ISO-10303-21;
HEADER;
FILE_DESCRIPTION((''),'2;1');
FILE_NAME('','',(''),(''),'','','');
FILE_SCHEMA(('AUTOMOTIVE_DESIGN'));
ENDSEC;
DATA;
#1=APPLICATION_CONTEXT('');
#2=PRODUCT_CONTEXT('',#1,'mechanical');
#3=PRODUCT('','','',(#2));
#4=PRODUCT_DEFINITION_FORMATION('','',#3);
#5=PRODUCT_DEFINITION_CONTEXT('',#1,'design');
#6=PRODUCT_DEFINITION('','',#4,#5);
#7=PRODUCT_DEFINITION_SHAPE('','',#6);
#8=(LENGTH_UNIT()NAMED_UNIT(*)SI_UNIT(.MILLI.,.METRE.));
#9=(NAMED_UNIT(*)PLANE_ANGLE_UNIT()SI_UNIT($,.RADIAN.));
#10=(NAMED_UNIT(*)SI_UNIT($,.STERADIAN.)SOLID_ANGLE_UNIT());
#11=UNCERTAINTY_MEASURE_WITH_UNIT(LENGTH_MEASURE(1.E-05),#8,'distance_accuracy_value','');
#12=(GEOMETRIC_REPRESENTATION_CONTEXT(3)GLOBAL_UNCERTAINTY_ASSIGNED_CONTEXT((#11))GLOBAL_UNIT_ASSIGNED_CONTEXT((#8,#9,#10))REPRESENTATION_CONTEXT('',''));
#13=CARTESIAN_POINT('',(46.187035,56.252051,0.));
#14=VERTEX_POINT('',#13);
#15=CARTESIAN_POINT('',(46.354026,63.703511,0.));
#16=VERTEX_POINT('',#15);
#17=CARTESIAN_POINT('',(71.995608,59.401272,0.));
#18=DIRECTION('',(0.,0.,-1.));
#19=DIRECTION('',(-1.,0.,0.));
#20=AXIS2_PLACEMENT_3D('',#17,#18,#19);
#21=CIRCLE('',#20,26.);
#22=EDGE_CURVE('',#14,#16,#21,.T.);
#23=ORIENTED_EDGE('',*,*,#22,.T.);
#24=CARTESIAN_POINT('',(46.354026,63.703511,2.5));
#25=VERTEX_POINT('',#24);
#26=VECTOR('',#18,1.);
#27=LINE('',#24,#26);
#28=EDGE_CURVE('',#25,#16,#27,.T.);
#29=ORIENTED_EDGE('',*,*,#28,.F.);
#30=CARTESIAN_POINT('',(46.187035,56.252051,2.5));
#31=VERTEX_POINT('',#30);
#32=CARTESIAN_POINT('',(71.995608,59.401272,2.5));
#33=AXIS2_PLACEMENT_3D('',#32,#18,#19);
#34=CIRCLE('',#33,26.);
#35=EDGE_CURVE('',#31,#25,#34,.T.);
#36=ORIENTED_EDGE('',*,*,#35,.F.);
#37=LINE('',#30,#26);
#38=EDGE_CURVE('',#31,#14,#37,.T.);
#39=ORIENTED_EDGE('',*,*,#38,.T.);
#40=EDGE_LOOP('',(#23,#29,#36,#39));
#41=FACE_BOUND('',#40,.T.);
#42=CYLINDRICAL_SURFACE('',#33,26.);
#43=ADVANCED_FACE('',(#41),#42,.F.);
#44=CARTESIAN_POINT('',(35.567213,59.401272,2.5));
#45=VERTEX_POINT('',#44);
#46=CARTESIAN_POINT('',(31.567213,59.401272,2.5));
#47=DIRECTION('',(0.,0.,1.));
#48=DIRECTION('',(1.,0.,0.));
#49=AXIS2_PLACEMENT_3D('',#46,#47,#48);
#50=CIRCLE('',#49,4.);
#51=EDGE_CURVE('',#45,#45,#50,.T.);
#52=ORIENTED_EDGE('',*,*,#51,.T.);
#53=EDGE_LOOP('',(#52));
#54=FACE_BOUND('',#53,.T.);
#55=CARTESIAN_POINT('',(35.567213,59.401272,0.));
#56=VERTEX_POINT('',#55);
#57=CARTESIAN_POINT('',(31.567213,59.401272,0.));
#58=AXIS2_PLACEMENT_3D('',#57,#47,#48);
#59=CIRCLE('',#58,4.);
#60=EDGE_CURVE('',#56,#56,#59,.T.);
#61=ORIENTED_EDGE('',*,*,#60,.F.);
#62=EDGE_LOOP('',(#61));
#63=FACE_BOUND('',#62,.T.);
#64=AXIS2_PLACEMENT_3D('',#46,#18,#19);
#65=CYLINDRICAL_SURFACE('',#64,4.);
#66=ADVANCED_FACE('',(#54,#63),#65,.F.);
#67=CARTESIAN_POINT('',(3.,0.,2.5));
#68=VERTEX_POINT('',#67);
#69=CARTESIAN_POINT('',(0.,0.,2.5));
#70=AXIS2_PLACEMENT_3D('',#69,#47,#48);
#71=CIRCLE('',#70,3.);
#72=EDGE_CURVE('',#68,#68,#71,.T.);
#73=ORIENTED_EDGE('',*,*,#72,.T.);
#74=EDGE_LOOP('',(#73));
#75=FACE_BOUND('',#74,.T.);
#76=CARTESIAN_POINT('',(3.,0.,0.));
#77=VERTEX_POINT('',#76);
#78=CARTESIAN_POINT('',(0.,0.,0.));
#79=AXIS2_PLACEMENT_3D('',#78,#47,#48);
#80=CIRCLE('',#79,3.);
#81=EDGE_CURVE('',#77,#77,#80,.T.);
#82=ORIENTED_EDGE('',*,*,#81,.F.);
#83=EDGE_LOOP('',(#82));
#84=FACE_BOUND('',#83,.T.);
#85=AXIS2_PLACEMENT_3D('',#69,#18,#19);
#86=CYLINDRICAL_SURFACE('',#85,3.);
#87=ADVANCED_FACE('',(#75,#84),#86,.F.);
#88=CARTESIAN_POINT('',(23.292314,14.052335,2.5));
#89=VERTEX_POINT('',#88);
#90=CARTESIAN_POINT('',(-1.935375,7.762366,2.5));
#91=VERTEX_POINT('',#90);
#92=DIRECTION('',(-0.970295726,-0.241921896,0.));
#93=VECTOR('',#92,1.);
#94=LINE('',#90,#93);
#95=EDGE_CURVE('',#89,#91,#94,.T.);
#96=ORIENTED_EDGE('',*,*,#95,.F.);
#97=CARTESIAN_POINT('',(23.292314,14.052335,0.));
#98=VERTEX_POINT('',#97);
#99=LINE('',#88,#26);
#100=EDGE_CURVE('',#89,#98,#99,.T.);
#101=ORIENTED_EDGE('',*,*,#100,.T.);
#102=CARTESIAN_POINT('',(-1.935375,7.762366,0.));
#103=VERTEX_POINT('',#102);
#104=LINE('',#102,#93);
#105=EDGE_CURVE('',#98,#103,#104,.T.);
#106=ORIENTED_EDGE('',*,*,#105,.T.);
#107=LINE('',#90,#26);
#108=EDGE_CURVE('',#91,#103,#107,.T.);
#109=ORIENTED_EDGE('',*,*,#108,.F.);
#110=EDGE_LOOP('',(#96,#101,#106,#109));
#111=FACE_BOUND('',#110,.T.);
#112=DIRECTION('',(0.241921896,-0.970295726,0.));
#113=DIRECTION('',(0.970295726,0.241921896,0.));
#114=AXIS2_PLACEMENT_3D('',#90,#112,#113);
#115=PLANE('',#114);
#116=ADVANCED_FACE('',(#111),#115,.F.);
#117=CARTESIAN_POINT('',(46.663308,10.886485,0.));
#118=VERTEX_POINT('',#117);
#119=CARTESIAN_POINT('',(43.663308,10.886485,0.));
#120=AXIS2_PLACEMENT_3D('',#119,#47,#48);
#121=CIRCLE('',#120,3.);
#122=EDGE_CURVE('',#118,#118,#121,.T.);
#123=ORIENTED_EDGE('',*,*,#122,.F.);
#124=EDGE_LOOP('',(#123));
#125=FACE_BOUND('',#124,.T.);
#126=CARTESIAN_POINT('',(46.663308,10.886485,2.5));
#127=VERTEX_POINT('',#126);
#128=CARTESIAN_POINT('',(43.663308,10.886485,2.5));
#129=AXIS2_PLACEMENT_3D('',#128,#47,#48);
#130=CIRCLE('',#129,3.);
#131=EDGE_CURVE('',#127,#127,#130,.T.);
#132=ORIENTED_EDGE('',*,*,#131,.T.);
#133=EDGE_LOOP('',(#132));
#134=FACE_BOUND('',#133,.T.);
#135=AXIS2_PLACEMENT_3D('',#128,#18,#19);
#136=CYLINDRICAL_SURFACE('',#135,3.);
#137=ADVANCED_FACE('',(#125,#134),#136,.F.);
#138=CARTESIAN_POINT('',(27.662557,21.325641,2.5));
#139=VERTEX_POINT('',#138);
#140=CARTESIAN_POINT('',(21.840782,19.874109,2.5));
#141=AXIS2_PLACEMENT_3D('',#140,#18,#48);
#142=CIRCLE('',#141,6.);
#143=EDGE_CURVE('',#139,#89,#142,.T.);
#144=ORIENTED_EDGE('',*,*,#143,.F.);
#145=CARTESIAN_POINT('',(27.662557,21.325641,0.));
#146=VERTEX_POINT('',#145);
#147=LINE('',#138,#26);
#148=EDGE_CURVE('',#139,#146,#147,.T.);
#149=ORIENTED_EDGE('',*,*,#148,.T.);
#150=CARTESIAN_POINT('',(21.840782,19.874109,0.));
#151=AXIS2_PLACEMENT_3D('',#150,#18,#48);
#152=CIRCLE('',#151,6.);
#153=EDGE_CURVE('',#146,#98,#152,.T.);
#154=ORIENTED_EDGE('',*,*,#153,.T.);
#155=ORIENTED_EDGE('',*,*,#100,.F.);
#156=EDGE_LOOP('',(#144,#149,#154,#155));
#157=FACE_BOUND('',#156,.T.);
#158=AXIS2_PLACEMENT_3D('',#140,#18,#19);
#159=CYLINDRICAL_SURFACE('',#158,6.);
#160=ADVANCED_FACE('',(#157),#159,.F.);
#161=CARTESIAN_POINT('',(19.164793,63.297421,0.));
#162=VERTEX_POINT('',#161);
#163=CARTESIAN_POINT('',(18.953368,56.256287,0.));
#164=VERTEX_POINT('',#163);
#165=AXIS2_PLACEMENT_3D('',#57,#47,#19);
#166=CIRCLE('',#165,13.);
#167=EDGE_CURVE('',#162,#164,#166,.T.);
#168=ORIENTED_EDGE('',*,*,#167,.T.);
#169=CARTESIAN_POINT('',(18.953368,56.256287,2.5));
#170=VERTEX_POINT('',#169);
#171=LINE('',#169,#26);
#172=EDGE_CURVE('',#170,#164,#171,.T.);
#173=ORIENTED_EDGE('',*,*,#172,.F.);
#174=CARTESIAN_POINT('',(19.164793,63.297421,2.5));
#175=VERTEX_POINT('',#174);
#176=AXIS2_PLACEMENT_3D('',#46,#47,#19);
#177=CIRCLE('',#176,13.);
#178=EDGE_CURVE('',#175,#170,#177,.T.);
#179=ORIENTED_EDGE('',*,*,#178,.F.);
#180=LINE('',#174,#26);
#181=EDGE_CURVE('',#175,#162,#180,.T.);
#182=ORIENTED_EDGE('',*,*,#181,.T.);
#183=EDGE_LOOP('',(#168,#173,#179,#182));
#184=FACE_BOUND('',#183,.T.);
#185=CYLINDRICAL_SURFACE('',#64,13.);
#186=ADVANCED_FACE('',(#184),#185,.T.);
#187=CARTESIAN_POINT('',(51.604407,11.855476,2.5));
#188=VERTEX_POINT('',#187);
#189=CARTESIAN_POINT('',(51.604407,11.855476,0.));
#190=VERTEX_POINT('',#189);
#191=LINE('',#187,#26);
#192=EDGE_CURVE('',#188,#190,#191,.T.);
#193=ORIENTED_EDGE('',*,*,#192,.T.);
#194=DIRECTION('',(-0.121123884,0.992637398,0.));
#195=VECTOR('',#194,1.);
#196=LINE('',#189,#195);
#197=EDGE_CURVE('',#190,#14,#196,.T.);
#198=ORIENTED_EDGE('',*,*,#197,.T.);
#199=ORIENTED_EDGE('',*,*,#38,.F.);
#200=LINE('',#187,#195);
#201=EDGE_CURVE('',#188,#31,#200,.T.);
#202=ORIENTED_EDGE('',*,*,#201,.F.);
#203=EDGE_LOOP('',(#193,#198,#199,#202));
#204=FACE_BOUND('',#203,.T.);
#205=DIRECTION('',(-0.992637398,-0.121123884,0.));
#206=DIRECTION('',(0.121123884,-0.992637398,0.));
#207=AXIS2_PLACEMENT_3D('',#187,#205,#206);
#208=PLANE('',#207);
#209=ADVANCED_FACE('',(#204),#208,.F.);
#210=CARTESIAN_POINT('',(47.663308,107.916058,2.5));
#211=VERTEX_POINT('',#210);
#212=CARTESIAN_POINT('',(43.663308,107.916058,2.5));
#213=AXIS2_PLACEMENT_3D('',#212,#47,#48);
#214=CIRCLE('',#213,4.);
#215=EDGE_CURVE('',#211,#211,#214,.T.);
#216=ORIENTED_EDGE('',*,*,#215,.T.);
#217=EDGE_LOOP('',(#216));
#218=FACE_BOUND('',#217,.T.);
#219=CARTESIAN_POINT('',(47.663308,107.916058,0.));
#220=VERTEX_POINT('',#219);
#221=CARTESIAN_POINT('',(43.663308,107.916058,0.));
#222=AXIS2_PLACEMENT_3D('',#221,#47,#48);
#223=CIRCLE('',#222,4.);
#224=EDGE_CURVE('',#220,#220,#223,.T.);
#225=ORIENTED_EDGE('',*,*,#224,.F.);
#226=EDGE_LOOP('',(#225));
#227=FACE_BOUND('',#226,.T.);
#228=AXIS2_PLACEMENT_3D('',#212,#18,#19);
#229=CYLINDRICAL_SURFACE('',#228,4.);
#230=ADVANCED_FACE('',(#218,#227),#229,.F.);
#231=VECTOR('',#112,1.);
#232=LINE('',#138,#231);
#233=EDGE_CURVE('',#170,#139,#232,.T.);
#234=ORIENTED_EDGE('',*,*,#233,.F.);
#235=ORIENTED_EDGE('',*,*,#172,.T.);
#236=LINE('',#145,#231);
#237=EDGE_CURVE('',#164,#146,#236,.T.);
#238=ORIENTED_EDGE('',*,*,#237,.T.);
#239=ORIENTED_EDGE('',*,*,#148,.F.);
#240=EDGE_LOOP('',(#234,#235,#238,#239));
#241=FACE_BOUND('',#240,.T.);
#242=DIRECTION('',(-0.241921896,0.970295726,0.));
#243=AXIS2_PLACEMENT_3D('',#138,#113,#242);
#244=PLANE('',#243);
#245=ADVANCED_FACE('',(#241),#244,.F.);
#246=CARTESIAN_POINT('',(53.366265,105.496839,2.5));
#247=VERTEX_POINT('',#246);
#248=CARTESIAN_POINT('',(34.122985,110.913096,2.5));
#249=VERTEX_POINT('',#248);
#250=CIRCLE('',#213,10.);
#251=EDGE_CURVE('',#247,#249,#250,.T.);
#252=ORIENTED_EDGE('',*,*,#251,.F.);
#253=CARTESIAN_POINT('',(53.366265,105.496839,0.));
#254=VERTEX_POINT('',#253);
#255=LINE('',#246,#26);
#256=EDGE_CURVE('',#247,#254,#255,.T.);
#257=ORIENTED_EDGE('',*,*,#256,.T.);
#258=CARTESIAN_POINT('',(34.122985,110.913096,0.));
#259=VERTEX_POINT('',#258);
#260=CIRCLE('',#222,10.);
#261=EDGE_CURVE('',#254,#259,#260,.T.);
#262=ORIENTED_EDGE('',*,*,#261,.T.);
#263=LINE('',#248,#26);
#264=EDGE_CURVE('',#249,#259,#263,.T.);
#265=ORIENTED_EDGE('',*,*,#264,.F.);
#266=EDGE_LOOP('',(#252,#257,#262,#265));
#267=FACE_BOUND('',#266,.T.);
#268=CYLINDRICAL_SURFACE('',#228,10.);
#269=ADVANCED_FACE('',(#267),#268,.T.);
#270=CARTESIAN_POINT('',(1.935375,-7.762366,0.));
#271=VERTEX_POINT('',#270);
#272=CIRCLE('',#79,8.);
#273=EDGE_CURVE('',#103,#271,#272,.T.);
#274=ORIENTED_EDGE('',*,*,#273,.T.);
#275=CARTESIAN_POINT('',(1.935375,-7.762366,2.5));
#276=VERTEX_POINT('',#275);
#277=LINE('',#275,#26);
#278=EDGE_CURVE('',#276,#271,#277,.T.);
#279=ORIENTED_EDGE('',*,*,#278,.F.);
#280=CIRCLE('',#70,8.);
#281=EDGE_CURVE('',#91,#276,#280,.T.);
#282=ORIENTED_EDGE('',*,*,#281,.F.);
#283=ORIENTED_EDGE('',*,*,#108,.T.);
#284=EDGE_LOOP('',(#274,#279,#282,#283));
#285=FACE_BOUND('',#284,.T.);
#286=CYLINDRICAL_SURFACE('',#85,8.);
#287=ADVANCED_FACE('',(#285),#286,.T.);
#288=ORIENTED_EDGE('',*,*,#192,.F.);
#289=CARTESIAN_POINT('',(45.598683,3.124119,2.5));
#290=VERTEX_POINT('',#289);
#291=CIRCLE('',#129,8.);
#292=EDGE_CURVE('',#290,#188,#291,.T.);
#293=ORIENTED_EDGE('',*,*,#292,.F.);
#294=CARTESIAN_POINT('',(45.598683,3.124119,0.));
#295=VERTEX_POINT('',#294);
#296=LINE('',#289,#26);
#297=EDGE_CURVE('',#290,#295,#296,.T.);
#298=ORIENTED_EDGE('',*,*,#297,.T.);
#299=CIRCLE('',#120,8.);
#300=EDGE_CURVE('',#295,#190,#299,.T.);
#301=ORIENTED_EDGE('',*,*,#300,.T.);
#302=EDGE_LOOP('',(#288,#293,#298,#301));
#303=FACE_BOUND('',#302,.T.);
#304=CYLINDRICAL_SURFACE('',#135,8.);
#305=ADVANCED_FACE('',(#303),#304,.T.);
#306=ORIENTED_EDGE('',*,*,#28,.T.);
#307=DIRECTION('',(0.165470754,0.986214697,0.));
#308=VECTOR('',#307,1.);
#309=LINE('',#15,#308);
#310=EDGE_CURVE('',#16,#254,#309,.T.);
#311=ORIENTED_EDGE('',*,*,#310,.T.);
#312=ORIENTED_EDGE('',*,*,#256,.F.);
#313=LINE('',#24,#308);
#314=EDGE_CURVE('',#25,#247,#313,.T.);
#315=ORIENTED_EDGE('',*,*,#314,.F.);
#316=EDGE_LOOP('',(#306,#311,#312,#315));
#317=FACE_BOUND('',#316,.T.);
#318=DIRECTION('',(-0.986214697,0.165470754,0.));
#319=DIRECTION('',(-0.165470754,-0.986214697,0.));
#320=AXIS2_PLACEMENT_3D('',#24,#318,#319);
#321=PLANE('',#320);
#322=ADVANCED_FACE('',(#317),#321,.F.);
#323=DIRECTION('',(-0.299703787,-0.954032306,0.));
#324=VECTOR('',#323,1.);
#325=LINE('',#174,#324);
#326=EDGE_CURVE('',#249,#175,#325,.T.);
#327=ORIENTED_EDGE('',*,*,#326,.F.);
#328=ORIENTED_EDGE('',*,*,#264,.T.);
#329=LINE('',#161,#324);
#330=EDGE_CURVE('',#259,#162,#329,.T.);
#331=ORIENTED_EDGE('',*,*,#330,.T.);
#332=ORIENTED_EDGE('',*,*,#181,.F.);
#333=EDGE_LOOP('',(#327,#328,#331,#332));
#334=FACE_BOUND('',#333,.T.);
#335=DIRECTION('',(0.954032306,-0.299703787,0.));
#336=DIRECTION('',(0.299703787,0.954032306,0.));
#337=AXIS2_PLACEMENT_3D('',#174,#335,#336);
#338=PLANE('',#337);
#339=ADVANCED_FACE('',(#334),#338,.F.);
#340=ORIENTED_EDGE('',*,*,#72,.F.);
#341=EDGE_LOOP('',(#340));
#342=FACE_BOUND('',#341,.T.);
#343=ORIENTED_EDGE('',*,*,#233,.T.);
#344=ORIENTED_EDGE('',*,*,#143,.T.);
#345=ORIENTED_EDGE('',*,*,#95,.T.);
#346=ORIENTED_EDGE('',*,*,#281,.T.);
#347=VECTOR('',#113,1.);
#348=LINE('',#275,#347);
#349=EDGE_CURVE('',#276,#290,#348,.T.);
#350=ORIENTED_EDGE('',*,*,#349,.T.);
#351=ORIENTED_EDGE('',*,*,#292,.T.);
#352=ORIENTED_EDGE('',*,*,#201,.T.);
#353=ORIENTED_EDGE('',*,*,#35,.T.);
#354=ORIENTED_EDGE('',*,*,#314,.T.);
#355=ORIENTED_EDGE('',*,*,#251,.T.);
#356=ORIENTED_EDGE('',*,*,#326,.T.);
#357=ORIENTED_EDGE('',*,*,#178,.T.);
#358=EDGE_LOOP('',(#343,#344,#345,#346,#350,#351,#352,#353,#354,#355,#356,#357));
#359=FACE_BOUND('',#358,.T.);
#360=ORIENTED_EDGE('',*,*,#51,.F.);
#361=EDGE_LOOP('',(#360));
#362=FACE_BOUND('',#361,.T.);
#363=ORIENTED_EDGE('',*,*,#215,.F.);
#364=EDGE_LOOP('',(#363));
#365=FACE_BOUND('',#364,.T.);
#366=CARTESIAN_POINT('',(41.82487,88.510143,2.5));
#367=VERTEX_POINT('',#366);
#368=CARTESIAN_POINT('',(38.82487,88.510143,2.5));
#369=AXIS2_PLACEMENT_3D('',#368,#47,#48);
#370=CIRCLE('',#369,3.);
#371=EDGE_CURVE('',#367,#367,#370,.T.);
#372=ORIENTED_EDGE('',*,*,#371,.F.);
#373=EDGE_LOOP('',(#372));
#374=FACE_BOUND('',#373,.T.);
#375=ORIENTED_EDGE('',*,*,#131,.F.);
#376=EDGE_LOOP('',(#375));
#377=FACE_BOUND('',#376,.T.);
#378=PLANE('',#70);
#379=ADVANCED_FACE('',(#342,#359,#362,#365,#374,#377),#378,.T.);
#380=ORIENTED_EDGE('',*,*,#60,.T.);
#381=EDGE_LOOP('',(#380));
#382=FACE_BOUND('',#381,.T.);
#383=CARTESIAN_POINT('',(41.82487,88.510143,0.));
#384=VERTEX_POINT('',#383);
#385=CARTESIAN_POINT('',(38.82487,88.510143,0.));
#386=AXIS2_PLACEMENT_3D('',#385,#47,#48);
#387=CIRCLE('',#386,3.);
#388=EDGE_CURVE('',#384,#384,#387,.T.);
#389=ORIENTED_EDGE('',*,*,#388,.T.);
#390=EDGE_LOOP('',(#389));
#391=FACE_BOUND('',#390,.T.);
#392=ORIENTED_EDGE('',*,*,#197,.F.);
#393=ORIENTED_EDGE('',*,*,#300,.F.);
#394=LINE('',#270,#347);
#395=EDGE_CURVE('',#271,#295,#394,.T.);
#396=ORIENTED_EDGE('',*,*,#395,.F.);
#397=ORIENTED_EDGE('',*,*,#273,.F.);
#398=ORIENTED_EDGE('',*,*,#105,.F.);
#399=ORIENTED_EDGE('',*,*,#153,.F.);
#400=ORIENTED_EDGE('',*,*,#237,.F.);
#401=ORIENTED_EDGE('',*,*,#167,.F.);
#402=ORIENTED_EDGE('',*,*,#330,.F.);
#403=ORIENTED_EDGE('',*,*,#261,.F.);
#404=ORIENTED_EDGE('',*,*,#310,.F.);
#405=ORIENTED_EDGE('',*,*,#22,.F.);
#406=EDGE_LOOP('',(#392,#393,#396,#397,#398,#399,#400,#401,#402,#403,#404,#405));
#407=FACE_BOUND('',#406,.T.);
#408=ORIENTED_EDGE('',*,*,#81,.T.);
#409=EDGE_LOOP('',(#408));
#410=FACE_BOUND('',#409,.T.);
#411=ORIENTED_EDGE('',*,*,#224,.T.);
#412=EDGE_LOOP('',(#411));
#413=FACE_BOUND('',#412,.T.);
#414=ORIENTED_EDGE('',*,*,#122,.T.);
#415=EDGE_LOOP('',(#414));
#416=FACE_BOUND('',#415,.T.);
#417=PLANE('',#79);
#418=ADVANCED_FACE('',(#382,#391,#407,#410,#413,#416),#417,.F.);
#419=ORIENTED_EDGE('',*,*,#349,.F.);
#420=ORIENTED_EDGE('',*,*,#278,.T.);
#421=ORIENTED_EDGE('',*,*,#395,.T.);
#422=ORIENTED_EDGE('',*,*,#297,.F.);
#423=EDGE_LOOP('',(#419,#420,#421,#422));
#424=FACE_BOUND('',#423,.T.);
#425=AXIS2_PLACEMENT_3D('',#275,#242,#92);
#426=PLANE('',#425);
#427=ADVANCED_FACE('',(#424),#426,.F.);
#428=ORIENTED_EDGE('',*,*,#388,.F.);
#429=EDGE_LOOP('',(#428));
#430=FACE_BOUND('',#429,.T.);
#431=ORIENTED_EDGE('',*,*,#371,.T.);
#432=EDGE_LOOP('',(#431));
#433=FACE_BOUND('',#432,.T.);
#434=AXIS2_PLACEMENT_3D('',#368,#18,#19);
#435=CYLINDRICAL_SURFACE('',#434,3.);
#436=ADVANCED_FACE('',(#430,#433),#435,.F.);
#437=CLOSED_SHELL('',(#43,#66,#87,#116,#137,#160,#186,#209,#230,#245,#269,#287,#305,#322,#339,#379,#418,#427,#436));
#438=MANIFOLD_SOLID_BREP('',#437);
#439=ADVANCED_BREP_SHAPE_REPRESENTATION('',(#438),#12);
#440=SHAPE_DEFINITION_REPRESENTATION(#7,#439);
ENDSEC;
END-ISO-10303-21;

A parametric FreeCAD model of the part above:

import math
import FreeCAD as App
import Part
import Sketcher

V = App.Vector
Q = App.Units.Quantity

doc = App.newDocument("Part")
body = doc.addObject("PartDesign::Body", "Body")

# Sketch on XY plane
sketch1 = body.newObject("Sketcher::SketchObject", "Sketch")
sketch1.AttachmentSupport = (doc.getObject("XY_Plane"), [""])
sketch1.MapMode = "FlatFace"
sketch1.addGeometry(Part.LineSegment(V(23.3, 14.1, 0), V(-1.9, 7.8, 0)), False)
sketch1.addGeometry(Part.ArcOfCircle(Part.Circle(V(0, 0, 0), V(0, 0, 1), 8), math.radians(104), math.radians(284)), False)
sketch1.addGeometry(Part.LineSegment(V(1.9, -7.8, 0), V(45.6, 3.1, 0)), False)
sketch1.addGeometry(Part.ArcOfCircle(Part.Circle(V(43.7, 10.9, 0), V(0, 0, 1), 8), math.radians(-76), math.radians(7)), False)
sketch1.addGeometry(Part.LineSegment(V(51.6, 11.9, 0), V(46.2, 56.3, 0)), False)
sketch1.addGeometry(Part.ArcOfCircle(Part.Circle(V(72, 59.4, 0), V(0, 0, 1), 26), math.radians(170.48), math.radians(186.96)), False)
sketch1.addGeometry(Part.LineSegment(V(46.4, 63.7, 0), V(53.4, 105.5, 0)), False)
sketch1.addGeometry(Part.ArcOfCircle(Part.Circle(V(43.7, 107.9, 0), V(0, 0, 1), 10), math.radians(-14), math.radians(163)), False)
sketch1.addGeometry(Part.LineSegment(V(34.1, 110.9, 0), V(19.2, 63.3, 0)), False)
sketch1.addGeometry(Part.ArcOfCircle(Part.Circle(V(31.6, 59.4, 0), V(0, 0, 1), 13), math.radians(163), math.radians(194)), False)
sketch1.addGeometry(Part.LineSegment(V(19, 56.3, 0), V(27.7, 21.3, 0)), False)
sketch1.addGeometry(Part.ArcOfCircle(Part.Circle(V(21.8, 19.9, 0), V(0, 0, 1), 6), math.radians(-76), math.radians(14)), False)
sketch1.addGeometry(Part.Circle(V(43.7, 10.9, 0), V(0, 0, 1), 3), False)
sketch1.addGeometry(Part.Circle(V(0, 0, 0), V(0, 0, 1), 3), False)
sketch1.addGeometry(Part.Circle(V(31.6, 59.4, 0), V(0, 0, 1), 4), False)
sketch1.addGeometry(Part.Circle(V(38.8, 88.5, 0), V(0, 0, 1), 3), False)
sketch1.addGeometry(Part.Circle(V(43.7, 107.9, 0), V(0, 0, 1), 4), False)
sketch1.addConstraint(Sketcher.Constraint("Tangent", 0, 2, 1, 1))
sketch1.addConstraint(Sketcher.Constraint("Tangent", 1, 2, 2, 1))
sketch1.addConstraint(Sketcher.Constraint("Tangent", 2, 2, 3, 1))
sketch1.addConstraint(Sketcher.Constraint("Tangent", 3, 2, 4, 1))
sketch1.addConstraint(Sketcher.Constraint("Tangent", 4, 2, 5, 2))
sketch1.addConstraint(Sketcher.Constraint("Tangent", 5, 1, 6, 1))
sketch1.addConstraint(Sketcher.Constraint("Coincident", 6, 2, 7, 1))
sketch1.addConstraint(Sketcher.Constraint("Tangent", 7, 2, 8, 1))
sketch1.addConstraint(Sketcher.Constraint("Tangent", 8, 2, 9, 1))
sketch1.addConstraint(Sketcher.Constraint("Tangent", 9, 2, 10, 1))
sketch1.addConstraint(Sketcher.Constraint("Tangent", 10, 2, 11, 2))
sketch1.addConstraint(Sketcher.Constraint("Tangent", 11, 1, 0, 1))
sketch1.addConstraint(Sketcher.Constraint("Coincident", 1, 3, -1, 1))
sketch1.addConstraint(Sketcher.Constraint("Coincident", 13, 3, -1, 1))
sketch1.addConstraint(Sketcher.Constraint("Coincident", 12, 3, 3, 3))
sketch1.addConstraint(Sketcher.Constraint("Coincident", 14, 3, 9, 3))
sketch1.addConstraint(Sketcher.Constraint("Coincident", 16, 3, 7, 3))
sketch1.addConstraint(Sketcher.Constraint("Equal", 1, 3))
sketch1.addConstraint(Sketcher.Constraint("Equal", 12, 13))
sketch1.addConstraint(Sketcher.Constraint("Equal", 13, 15))
sketch1.addConstraint(Sketcher.Constraint("Equal", 14, 16))
sketch1.addConstraint(Sketcher.Constraint("Parallel", 0, 2))
sketch1.addConstraint(Sketcher.Constraint("Perpendicular", 2, 10))
sketch1.addConstraint(Sketcher.Constraint("Horizontal", 5, 3, 9, 3))
sketch1.addConstraint(Sketcher.Constraint("Vertical", 3, 3, 7, 3))
sketch1.addConstraint(Sketcher.Constraint("Diameter", 12, Q("6 mm")))
sketch1.addConstraint(Sketcher.Constraint("Diameter", 14, Q("8 mm")))
sketch1.addConstraint(Sketcher.Constraint("Radius", 1, Q("8 mm")))
sketch1.addConstraint(Sketcher.Constraint("Radius", 5, Q("26 mm")))
sketch1.addConstraint(Sketcher.Constraint("Radius", 7, Q("10 mm")))
sketch1.addConstraint(Sketcher.Constraint("Radius", 9, Q("13 mm")))
sketch1.addConstraint(Sketcher.Constraint("Radius", 11, Q("6 mm")))
sketch1.addConstraint(Sketcher.Constraint("Angle", 0, Q("-166 deg")))
sketch1.addConstraint(Sketcher.Constraint("Distance", 0, Q("26 mm")))
sketch1.addConstraint(Sketcher.Constraint("Distance", 2, Q("45 mm")))
sketch1.addConstraint(Sketcher.Constraint("Distance", 10, Q("36 mm")))
sketch1.addConstraint(Sketcher.Constraint("DistanceX", 3, 3, 5, 3, Q("28.3323 mm")))
sketch1.addConstraint(Sketcher.Constraint("Distance", 8, Q("49.909919 mm")))
sketch1.addConstraint(Sketcher.Constraint("DistanceX", -1, 1, 15, 3, Q("38.82487 mm")))
sketch1.addConstraint(Sketcher.Constraint("DistanceY", -1, 1, 6, 2, Q("105.496839 mm")))
sketch1.addConstraint(Sketcher.Constraint("DistanceY", 14, 3, 15, 3, Q("29.108872 mm")))
pad1 = body.newObject("PartDesign::Pad", "Pad")
pad1.Profile = sketch1
pad1.Length = 2.5

doc.recompute()
